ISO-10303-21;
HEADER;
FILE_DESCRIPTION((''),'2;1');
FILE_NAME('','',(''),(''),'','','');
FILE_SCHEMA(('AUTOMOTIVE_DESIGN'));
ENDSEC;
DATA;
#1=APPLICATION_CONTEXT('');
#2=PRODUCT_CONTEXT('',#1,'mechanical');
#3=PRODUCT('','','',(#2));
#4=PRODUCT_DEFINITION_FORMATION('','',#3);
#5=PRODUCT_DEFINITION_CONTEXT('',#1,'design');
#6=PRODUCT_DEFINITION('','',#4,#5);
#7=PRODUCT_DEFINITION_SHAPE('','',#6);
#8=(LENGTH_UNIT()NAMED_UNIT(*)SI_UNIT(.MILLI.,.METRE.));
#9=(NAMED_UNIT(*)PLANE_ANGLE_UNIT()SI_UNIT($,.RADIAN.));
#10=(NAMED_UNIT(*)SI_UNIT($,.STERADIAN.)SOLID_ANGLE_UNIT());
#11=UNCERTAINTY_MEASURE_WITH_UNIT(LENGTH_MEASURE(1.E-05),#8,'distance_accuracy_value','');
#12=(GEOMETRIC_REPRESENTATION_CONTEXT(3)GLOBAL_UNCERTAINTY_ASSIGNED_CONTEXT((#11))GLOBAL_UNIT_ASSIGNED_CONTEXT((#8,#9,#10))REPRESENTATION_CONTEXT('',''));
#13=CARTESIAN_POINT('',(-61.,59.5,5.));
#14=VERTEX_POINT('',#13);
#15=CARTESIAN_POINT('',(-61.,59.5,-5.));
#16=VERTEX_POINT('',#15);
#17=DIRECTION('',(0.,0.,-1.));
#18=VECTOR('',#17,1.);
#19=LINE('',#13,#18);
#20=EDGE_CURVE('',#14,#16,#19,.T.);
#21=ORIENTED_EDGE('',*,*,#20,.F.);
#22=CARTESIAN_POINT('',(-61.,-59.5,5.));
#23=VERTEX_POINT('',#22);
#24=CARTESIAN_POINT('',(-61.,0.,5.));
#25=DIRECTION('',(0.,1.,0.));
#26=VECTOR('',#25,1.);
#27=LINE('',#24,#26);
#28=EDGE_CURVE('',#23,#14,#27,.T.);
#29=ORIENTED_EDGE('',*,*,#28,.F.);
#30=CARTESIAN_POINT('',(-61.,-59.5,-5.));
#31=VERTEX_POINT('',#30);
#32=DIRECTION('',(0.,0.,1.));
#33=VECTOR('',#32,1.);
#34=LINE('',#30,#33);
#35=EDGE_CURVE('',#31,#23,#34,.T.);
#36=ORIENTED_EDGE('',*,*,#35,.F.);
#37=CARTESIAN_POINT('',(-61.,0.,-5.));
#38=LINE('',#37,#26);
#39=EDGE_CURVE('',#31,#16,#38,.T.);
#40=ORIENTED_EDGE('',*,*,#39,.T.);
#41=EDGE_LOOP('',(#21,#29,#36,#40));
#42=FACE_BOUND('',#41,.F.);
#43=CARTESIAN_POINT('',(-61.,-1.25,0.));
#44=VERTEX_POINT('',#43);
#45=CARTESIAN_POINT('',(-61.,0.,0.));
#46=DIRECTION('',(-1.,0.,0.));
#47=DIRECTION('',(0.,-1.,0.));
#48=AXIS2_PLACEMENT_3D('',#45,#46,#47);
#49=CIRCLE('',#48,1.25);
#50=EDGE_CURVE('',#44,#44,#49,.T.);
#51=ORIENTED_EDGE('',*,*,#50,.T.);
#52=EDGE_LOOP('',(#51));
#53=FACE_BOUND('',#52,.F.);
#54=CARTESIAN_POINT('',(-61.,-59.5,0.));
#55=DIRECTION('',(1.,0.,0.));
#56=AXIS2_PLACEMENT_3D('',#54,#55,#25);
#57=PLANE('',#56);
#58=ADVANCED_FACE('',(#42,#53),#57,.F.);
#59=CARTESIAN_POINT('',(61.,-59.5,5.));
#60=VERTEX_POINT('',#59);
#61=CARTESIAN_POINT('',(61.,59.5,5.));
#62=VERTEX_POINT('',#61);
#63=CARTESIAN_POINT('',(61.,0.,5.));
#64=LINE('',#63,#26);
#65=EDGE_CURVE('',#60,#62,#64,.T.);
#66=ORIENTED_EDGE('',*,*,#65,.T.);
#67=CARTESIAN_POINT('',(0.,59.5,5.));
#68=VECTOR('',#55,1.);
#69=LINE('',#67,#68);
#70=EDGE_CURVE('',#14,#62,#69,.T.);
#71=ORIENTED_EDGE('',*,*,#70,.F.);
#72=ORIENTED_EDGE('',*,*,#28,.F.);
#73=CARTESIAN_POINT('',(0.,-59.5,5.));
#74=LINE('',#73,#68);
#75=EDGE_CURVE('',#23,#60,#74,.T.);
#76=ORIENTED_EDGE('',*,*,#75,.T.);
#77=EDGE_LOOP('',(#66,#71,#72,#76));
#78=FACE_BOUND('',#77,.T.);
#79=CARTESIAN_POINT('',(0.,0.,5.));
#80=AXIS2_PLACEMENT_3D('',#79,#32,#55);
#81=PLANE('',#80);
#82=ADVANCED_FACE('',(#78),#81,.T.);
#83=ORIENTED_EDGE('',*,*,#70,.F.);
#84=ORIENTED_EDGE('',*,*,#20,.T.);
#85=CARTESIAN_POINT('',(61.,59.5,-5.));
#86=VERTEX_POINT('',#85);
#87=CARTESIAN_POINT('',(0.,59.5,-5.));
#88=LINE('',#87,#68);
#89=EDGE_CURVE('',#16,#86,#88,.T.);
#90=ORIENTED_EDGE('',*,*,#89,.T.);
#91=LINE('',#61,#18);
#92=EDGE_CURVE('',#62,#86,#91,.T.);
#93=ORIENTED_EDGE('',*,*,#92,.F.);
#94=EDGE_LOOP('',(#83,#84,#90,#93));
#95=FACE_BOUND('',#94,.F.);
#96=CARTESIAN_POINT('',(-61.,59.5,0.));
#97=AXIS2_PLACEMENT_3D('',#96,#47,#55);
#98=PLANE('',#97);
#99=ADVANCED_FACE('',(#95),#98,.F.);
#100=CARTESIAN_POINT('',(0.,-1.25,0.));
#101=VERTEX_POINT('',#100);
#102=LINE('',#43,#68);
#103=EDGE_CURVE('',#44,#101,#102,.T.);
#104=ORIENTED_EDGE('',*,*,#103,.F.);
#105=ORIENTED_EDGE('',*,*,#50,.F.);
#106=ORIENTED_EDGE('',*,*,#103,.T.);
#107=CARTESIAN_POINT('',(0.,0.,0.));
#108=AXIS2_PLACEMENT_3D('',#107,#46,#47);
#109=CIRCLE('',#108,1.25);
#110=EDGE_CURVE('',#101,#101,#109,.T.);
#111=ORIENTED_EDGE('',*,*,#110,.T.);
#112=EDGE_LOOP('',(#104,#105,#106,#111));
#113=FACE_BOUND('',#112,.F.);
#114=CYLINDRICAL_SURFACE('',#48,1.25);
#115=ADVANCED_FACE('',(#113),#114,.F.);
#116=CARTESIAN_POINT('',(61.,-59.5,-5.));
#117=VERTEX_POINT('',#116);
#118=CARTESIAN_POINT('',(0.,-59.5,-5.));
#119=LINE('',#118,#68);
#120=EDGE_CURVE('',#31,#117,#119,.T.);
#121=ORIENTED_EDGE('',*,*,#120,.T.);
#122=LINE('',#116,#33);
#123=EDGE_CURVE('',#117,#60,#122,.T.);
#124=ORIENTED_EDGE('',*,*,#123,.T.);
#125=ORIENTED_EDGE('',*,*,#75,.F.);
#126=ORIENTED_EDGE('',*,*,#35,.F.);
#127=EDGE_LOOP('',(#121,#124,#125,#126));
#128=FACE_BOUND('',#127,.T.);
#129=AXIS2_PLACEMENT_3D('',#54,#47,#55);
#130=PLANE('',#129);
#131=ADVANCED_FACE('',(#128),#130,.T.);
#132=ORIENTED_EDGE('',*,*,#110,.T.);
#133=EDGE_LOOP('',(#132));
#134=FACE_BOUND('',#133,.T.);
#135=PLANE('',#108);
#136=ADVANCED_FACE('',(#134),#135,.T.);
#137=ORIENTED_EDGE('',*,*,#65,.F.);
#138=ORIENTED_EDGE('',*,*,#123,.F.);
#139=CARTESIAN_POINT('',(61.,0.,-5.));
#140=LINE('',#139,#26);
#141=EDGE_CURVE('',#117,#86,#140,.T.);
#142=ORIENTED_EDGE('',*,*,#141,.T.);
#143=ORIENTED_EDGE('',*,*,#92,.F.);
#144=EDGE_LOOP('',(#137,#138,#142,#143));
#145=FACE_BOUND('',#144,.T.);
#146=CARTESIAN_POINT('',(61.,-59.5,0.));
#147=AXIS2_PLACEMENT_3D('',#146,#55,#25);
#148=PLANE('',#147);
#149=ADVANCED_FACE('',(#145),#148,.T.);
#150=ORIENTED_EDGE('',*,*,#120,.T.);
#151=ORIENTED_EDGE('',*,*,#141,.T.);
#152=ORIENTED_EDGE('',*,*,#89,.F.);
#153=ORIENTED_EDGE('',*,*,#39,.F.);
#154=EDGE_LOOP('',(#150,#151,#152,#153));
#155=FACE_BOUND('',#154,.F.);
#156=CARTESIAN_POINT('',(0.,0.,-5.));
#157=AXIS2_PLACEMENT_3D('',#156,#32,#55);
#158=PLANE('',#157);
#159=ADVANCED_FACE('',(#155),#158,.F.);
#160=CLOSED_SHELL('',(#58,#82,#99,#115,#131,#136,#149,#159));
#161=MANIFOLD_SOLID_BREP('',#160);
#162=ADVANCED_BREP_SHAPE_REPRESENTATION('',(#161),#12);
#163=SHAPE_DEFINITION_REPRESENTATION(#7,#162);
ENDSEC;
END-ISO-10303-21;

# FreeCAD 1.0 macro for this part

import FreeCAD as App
import Part
import Sketcher

V = App.Vector
Q = App.Units.Quantity

doc = App.newDocument("Part")
body = doc.addObject("PartDesign::Body", "Body")

# Sketch on XY plane
sketch1 = body.newObject("Sketcher::SketchObject", "Sketch")
sketch1.AttachmentSupport = (doc.getObject("XY_Plane"), [""])
sketch1.MapMode = "FlatFace"
sketch1.addGeometry(Part.LineSegment(V(-61, 60, 0), V(-61, -60, 0)), False)
sketch1.addGeometry(Part.LineSegment(V(-61, -60, 0), V(61, -60, 0)), False)
sketch1.addGeometry(Part.LineSegment(V(61, -60, 0), V(61, 60, 0)), False)
sketch1.addGeometry(Part.LineSegment(V(61, 60, 0), V(-61, 60, 0)), False)
sketch1.addConstraint(Sketcher.Constraint("Coincident", 0, 2, 1, 1))
sketch1.addConstraint(Sketcher.Constraint("Coincident", 1, 2, 2, 1))
sketch1.addConstraint(Sketcher.Constraint("Coincident", 2, 2, 3, 1))
sketch1.addConstraint(Sketcher.Constraint("Coincident", 3, 2, 0, 1))
sketch1.addConstraint(Sketcher.Constraint("Vertical", 0))
sketch1.addConstraint(Sketcher.Constraint("Horizontal", 1))
sketch1.addConstraint(Sketcher.Constraint("Vertical", 2))
sketch1.addConstraint(Sketcher.Constraint("Horizontal", 3))
sketch1.addConstraint(Sketcher.Constraint("Symmetric", 0, 2, 2, 2, -1, 1))
sketch1.addConstraint(Sketcher.Constraint("DistanceX", 1, 1, 1, 2, Q("122 mm")))
sketch1.addConstraint(Sketcher.Constraint("DistanceY", 0, 2, 0, 1, Q("119 mm")))
pad1 = body.newObject("PartDesign::Pad", "Pad")
pad1.Profile = sketch1
pad1.Length = 10
pad1.Midplane = True

# Sketch on YZ plane
sketch2 = body.newObject("Sketcher::SketchObject", "Sketch001")
sketch2.AttachmentSupport = (doc.getObject("YZ_Plane"), [""])
sketch2.MapMode = "FlatFace"
sketch2.AttachmentOffset = App.Placement(V(0, 0, -61), App.Rotation())
sketch2.addGeometry(Part.Circle(V(0, 0, 0), V(0, 0, 1), 1.2), False)
sketch2.addConstraint(Sketcher.Constraint("Coincident", 0, 3, -1, 1))
sketch2.addConstraint(Sketcher.Constraint("Diameter", 0, Q("2.5 mm")))
pocket1 = body.newObject("PartDesign::Pocket", "Pocket")
pocket1.Profile = sketch2
pocket1.Length = 61
pocket1.Reversed = True

doc.recompute()
